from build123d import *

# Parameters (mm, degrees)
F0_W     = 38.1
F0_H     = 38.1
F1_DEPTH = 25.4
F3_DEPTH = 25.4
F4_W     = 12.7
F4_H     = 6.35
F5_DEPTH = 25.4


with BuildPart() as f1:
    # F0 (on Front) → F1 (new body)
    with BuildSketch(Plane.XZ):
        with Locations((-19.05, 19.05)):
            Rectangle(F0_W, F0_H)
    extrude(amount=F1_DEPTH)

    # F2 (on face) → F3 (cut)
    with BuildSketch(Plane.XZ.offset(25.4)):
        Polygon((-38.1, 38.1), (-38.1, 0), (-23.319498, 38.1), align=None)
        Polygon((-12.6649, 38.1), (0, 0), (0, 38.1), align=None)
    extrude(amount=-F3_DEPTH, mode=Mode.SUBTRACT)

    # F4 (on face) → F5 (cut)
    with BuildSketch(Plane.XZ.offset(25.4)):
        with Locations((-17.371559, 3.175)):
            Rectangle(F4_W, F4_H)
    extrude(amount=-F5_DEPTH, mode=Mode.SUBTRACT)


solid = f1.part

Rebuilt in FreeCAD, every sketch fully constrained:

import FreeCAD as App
import Part
import Sketcher
Q = App.Units.Quantity


def add_polygon(sketch, points):
    """Adds a closed chain of lines whose ends are joined by coincident constraints."""
    first, n = sketch.GeometryCount, len(points)
    for a, b in zip(points, points[1:] + points[:1]):
        sketch.addGeometry(Part.LineSegment(App.Vector(*a, 0), App.Vector(*b, 0)), False)
    for i in range(n):
        sketch.addConstraint(Sketcher.Constraint("Coincident", first + i, 2, first + (i + 1) % n, 1))

doc = App.newDocument("Part")
body = doc.addObject("PartDesign::Body", "Body")

# Sketch on XZ plane
sketch1 = body.newObject("Sketcher::SketchObject", "Sketch")
sketch1.AttachmentSupport = (doc.getObject("XZ_Plane"), [""])
sketch1.MapMode = "FlatFace"
add_polygon(sketch1, [(-38, 38), (-38, 0), (0, 0), (0, 38)])  # lines 0-3
sketch1.addConstraint([
    Sketcher.Constraint("Vertical", 0),
    Sketcher.Constraint("Horizontal", 1),
    Sketcher.Constraint("Vertical", 2),
    Sketcher.Constraint("Horizontal", 3),
    Sketcher.Constraint("Coincident", 1, 2, -1, 1),
    Sketcher.Constraint("Equal", 3, 0),
    Sketcher.Constraint("DistanceX", 1, 1, 1, 2, Q("1.5 in")),
])
pad1 = body.newObject("PartDesign::Pad", "Pad")
pad1.Profile = sketch1
pad1.Length = Q("1 in")

# Sketch on XZ plane
sketch2 = body.newObject("Sketcher::SketchObject", "Sketch001")
sketch2.AttachmentSupport = (doc.getObject("XZ_Plane"), [""])
sketch2.MapMode = "FlatFace"
sketch2.AttachmentOffset = App.Placement(App.Vector(0, 0, 1 * 25.4), App.Rotation())
add_polygon(sketch2, [(-38, 38), (-38, 0), (-23, 38)])  # lines 0-2
add_polygon(sketch2, [(-13, 38), (0, 0), (0, 38)])  # lines 3-5
sketch2.addConstraint([
    Sketcher.Constraint("Vertical", 0),
    Sketcher.Constraint("Horizontal", 2),
    Sketcher.Constraint("Vertical", 4),
    Sketcher.Constraint("Horizontal", 5),
    Sketcher.Constraint("Coincident", 3, 2, -1, 1),
    Sketcher.Constraint("PointOnObject", 0, 2, -1),
    Sketcher.Constraint("Horizontal", 2, 2, 4, 2),
    Sketcher.Constraint("DistanceY", 0, 2, 0, 1, Q("1.5 in")),
    Sketcher.Constraint("DistanceX", 0, 2, -1, 1, Q("1.5 in")),
    Sketcher.Constraint("DistanceX", 5, 2, 5, 1, 12.6649),
    Sketcher.Constraint("Distance", 1, 40.86653),
])
pocket1 = body.newObject("PartDesign::Pocket", "Pocket")
pocket1.Profile = sketch2
pocket1.Length = Q("1 in")

# Sketch on XZ plane
sketch3 = body.newObject("Sketcher::SketchObject", "Sketch002")
sketch3.AttachmentSupport = (doc.getObject("XZ_Plane"), [""])
sketch3.MapMode = "FlatFace"
sketch3.AttachmentOffset = App.Placement(App.Vector(0, 0, 1 * 25.4), App.Rotation())
add_polygon(sketch3, [(-24, 6), (-24, 0), (-11, 0), (-11, 6)])  # lines 0-3
sketch3.addConstraint([
    Sketcher.Constraint("Vertical", 0),
    Sketcher.Constraint("Horizontal", 1),
    Sketcher.Constraint("Vertical", 2),
    Sketcher.Constraint("Horizontal", 3),
    Sketcher.Constraint("PointOnObject", 0, 2, -1),
    Sketcher.Constraint("DistanceX", 1, 1, 1, 2, Q("0.5 in")),
    Sketcher.Constraint("DistanceY", 0, 2, 0, 1, Q("0.25 in")),
    Sketcher.Constraint("DistanceX", 0, 2, -1, 1, 23.721559),
])
pocket2 = body.newObject("PartDesign::Pocket", "Pocket001")
pocket2.Profile = sketch3
pocket2.Length = Q("1 in")

doc.recompute()
